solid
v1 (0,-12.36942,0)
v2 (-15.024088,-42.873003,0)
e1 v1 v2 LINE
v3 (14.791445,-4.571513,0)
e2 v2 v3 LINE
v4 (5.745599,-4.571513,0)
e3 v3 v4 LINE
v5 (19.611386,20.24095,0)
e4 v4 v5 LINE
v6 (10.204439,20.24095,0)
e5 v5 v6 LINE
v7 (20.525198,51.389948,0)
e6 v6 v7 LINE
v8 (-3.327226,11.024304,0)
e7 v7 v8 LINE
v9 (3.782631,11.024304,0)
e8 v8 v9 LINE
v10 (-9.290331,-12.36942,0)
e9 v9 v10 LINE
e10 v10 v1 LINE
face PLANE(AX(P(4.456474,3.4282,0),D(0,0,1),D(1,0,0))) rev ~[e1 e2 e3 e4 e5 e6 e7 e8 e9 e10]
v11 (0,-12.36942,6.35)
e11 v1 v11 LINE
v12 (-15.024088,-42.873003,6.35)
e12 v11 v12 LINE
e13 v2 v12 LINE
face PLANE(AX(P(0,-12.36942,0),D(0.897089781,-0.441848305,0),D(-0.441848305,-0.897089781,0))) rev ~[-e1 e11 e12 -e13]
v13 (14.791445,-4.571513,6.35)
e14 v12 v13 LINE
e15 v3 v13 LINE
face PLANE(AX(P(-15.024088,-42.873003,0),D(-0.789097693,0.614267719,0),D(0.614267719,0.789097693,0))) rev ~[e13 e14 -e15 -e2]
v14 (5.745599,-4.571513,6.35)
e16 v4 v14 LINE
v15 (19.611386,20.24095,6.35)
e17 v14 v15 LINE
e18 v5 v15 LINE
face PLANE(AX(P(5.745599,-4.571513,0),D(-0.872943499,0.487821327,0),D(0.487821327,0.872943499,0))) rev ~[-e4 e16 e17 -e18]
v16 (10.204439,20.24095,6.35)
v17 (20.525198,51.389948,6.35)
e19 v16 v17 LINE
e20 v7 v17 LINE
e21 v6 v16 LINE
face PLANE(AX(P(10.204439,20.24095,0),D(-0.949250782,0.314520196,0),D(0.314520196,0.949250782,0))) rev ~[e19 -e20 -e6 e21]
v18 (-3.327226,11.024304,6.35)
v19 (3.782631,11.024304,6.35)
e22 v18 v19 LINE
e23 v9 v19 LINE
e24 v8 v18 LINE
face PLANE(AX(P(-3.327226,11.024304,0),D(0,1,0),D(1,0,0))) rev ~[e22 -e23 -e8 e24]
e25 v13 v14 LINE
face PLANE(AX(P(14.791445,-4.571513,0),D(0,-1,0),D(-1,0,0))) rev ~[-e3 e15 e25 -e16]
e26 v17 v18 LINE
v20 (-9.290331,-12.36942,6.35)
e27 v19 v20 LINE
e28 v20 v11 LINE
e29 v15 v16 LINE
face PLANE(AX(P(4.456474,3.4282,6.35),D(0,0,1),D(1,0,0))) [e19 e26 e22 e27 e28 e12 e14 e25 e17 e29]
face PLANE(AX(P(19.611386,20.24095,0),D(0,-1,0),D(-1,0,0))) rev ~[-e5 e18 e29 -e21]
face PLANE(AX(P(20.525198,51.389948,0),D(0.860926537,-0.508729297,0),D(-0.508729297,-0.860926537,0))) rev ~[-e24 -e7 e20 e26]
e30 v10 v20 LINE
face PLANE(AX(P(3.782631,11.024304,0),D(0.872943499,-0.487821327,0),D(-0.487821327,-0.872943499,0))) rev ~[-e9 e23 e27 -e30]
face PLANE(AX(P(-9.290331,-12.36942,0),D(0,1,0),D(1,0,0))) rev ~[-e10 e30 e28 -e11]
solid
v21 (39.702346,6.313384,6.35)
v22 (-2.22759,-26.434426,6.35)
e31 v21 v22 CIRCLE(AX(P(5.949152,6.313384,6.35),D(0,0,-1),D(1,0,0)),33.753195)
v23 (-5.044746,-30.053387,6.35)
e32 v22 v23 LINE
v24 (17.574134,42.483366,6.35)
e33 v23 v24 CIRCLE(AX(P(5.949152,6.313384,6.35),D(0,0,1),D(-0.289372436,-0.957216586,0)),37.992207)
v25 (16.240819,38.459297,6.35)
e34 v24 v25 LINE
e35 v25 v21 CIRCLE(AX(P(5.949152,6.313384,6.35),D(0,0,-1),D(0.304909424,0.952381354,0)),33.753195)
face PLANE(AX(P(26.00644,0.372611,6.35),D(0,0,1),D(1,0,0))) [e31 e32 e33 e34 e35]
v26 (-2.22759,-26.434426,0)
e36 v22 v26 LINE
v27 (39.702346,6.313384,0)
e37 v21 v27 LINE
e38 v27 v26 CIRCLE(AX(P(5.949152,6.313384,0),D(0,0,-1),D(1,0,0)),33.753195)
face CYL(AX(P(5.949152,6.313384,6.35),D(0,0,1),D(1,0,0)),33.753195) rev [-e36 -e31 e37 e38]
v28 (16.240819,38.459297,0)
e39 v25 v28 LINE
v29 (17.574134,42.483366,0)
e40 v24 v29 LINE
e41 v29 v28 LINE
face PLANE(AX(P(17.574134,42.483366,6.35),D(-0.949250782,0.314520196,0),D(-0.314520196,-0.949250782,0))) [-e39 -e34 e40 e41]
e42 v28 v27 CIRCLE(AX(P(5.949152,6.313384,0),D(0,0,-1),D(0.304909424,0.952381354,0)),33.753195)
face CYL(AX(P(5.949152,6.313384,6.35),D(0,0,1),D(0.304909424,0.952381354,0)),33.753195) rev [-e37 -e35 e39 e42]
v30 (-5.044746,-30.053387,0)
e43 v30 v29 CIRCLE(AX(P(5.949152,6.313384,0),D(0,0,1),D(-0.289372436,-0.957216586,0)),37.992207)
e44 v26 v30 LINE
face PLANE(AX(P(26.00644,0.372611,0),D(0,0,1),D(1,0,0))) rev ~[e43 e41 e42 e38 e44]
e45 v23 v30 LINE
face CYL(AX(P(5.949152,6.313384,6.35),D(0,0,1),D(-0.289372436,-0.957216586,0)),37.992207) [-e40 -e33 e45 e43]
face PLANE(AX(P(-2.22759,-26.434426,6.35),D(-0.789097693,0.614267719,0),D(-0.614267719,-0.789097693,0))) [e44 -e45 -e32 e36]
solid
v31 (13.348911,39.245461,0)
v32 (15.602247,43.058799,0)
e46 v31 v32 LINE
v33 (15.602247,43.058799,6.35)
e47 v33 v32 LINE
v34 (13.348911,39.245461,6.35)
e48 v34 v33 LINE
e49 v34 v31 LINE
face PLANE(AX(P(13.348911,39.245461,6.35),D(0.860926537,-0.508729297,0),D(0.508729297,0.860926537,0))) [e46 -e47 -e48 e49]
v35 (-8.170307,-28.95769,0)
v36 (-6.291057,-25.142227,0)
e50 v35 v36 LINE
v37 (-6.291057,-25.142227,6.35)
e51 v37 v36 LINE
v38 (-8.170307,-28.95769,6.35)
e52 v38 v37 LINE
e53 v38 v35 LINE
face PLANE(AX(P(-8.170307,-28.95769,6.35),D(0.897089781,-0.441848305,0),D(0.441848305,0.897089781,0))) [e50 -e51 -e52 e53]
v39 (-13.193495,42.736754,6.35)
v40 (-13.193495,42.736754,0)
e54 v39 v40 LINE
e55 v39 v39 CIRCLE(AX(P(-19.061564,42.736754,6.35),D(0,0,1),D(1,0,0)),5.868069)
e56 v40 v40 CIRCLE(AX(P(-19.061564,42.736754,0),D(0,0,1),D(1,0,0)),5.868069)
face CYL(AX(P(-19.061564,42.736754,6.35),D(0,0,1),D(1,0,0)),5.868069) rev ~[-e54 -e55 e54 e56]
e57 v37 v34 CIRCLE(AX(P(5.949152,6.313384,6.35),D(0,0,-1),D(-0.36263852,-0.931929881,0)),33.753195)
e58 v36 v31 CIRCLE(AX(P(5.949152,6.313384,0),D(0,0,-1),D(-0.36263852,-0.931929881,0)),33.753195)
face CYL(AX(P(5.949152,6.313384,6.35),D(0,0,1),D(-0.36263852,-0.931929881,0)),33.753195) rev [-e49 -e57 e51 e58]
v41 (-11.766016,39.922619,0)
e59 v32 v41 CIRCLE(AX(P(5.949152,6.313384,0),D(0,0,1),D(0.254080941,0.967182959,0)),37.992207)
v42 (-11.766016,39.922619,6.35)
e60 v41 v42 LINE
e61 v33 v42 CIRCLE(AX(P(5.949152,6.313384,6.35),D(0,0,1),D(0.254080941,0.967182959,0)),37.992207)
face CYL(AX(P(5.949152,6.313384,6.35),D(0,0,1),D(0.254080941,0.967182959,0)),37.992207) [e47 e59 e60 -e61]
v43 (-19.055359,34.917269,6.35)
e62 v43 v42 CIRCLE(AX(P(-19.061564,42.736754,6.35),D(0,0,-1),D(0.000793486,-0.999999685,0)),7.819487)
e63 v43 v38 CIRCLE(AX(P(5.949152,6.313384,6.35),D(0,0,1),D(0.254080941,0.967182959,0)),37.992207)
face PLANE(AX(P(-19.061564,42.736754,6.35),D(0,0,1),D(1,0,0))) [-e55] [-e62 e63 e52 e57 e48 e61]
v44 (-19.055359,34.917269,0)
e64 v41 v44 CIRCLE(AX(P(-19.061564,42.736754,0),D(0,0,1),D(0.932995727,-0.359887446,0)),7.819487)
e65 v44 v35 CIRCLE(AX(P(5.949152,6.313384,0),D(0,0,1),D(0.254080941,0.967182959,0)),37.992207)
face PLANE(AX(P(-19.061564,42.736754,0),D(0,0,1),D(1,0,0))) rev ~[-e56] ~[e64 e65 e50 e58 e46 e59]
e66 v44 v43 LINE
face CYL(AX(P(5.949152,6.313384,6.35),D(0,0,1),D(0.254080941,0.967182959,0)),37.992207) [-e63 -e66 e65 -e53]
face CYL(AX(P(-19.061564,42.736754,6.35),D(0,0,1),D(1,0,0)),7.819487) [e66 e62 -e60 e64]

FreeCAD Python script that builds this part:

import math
import FreeCAD as App
import Part
import Sketcher
from FreeCAD import Vector
Q = App.Units.Quantity


def add_polygon(sketch, points):
    """Adds a closed chain of lines whose ends are joined by coincident constraints."""
    first, n = sketch.GeometryCount, len(points)
    for a, b in zip(points, points[1:] + points[:1]):
        sketch.addGeometry(Part.LineSegment(App.Vector(*a, 0), App.Vector(*b, 0)), False)
    for i in range(n):
        sketch.addConstraint(Sketcher.Constraint("Coincident", first + i, 2, first + (i + 1) % n, 1))

doc = App.newDocument("Part")
body = doc.addObject("PartDesign::Body", "Body")

# Sketch on XY plane
sketch1 = body.newObject("Sketcher::SketchObject", "Sketch")
sketch1.AttachmentSupport = (doc.getObject("XY_Plane"), [""])
sketch1.MapMode = "FlatFace"
add_polygon(sketch1, [(10, 20), (21, 51), (-3, 11), (4, 11), (-9, -12), (0, -12), (-15, -43), (15, -5), (6, -5), (20, 20)])  # lines 0-9
sketch1.addConstraint(Sketcher.Constraint("Horizontal", 2))
sketch1.addConstraint(Sketcher.Constraint("Horizontal", 4))
sketch1.addConstraint(Sketcher.Constraint("Horizontal", 7))
sketch1.addConstraint(Sketcher.Constraint("Horizontal", 9))
sketch1.addConstraint(Sketcher.Constraint("PointOnObject", 4, 2, -2))
sketch1.addConstraint(Sketcher.Constraint("Parallel", 3, 8))
sketch1.addConstraint(Sketcher.Constraint("DistanceX", 4, 1, 4, 2, Q("9.290331 mm")))
sketch1.addConstraint(Sketcher.Constraint("DistanceX", -1, 1, 0, 2, Q("20.525198 mm")))
sketch1.addConstraint(Sketcher.Constraint("DistanceX", -1, 1, 7, 2, Q("5.745599 mm")))
sketch1.addConstraint(Sketcher.Constraint("Distance", 1, Q("46.886281 mm")))
sketch1.addConstraint(Sketcher.Constraint("Distance", 3, Q("26.798669 mm")))
sketch1.addConstraint(Sketcher.Constraint("Distance", 5, Q("34.00282 mm")))
sketch1.addConstraint(Sketcher.Constraint("DistanceX", 2, 1, 2, 2, Q("7.109858 mm")))
sketch1.addConstraint(Sketcher.Constraint("DistanceX", 7, 2, 7, 1, Q("9.045846 mm")))
sketch1.addConstraint(Sketcher.Constraint("DistanceX", 9, 2, 9, 1, Q("9.406947 mm")))
sketch1.addConstraint(Sketcher.Constraint("DistanceX", -1, 1, 2, 2, Q("3.782631 mm")))
sketch1.addConstraint(Sketcher.Constraint("DistanceY", 3, 2, -1, 1, Q("12.36942 mm")))
sketch1.addConstraint(Sketcher.Constraint("DistanceX", 5, 2, -1, 1, Q("15.024088 mm")))
sketch1.addConstraint(Sketcher.Constraint("DistanceY", -1, 1, 8, 2, Q("20.24095 mm")))
sketch1.addConstraint(Sketcher.Constraint("DistanceX", -1, 1, 9, 2, Q("10.204439 mm")))
pad1 = body.newObject("PartDesign::Pad", "Pad")
pad1.Profile = sketch1
pad1.Length = Q("0.25 in")
body2 = doc.addObject("PartDesign::Body", "Body001")

# Sketch on XY plane
sketch2 = body2.newObject("Sketcher::SketchObject", "Sketch001")
sketch2.AttachmentSupport = (doc.getObject("XY_Plane001"), [""])
sketch2.MapMode = "FlatFace"
sketch2.AttachmentOffset = App.Placement(Vector(0, 0, 0.25 * 25.4), App.Rotation())
sketch2.addGeometry(Part.ArcOfCircle(Part.Circle(Vector(5.9, 6.3, 0), Vector(0, 0, 1), 33.8), math.radians(77), math.radians(249)), False)
sketch2.addGeometry(Part.LineSegment(Vector(13.3, 39.2, 0), Vector(15.6, 43.1, 0)), False)
sketch2.addGeometry(Part.ArcOfCircle(Part.Circle(Vector(5.9, 6.3, 0), Vector(0, 0, 1), 38), math.radians(75), math.radians(248)), False)
sketch2.addGeometry(Part.LineSegment(Vector(-8.2, -29, 0), Vector(-6.3, -25.1, 0)), False)
sketch2.addConstraint(Sketcher.Constraint("Coincident", 0, 1, 1, 1))
sketch2.addConstraint(Sketcher.Constraint("Coincident", 1, 2, 2, 1))
sketch2.addConstraint(Sketcher.Constraint("Coincident", 2, 2, 3, 1))
sketch2.addConstraint(Sketcher.Constraint("Coincident", 3, 2, 0, 2))
sketch2.addConstraint(Sketcher.Constraint("Coincident", 2, 3, 0, 3))
sketch2.addConstraint(Sketcher.Constraint("Radius", 0, Q("33.753195 mm")))
sketch2.addConstraint(Sketcher.Constraint("Radius", 2, Q("37.992207 mm")))
sketch2.addConstraint(Sketcher.Constraint("DistanceY", -1, 1, 1, 2, Q("43.058799 mm")))
sketch2.addConstraint(Sketcher.Constraint("DistanceX", -1, 1, 0, 3, Q("5.949152 mm")))
sketch2.addConstraint(Sketcher.Constraint("DistanceX", -1, 1, 0, 1, Q("13.348911 mm")))
sketch2.addConstraint(Sketcher.Constraint("DistanceY", -1, 1, 0, 1, Q("39.245461 mm")))
sketch2.addConstraint(Sketcher.Constraint("DistanceY", 2, 2, -1, 1, Q("28.95769 mm")))
sketch2.addConstraint(Sketcher.Constraint("DistanceX", 2, 2, 3, 2, Q("1.87925 mm")))
pad2 = body2.newObject("PartDesign::Pad", "Pad001")
pad2.Profile = sketch2
pad2.Length = Q("0.25 in")
pad2.Reversed = True

# Sketch on XY plane
sketch3 = body2.newObject("Sketcher::SketchObject", "Sketch002")
sketch3.AttachmentSupport = (doc.getObject("XY_Plane001"), [""])
sketch3.MapMode = "FlatFace"
sketch3.AttachmentOffset = App.Placement(Vector(0, 0, 0.25 * 25.4), App.Rotation())
sketch3.addGeometry(Part.Circle(Vector(-19, 43, 0), Vector(0, 0, 1), 8), False)
sketch3.addGeometry(Part.Circle(Vector(-19, 43, 0), Vector(0, 0, 1), 6), False)
sketch3.addConstraint(Sketcher.Constraint("Coincident", 1, 3, 0, 3))
sketch3.addConstraint(Sketcher.Constraint("Diameter", 0, Q("15.638974 mm")))
sketch3.addConstraint(Sketcher.Constraint("Diameter", 1, Q("11.736138 mm")))
sketch3.addConstraint(Sketcher.Constraint("DistanceX", 0, 3, -1, 1, Q("19.061564 mm")))
sketch3.addConstraint(Sketcher.Constraint("DistanceY", -1, 1, 0, 3, Q("42.736754 mm")))
pad3 = body2.newObject("PartDesign::Pad", "Pad002")
pad3.Profile = sketch3
pad3.Length = Q("0.25 in")
pad3.Reversed = True
body3 = doc.addObject("PartDesign::Body", "Body002")

# Sketch on XY plane
sketch4 = body3.newObject("Sketcher::SketchObject", "Sketch003")
sketch4.AttachmentSupport = (doc.getObject("XY_Plane002"), [""])
sketch4.MapMode = "FlatFace"
sketch4.AttachmentOffset = App.Placement(Vector(0, 0, 0.25 * 25.4), App.Rotation())
sketch4.addGeometry(Part.ArcOfCircle(Part.Circle(Vector(5.9, 6.3, 0), Vector(0, 0, 1), 33.8), math.radians(0), math.radians(72)), False)
sketch4.addGeometry(Part.ArcOfCircle(Part.Circle(Vector(5.9, 6.3, 0), Vector(0, 0, 1), 33.8), math.radians(-104), math.radians(0)), False)
sketch4.addGeometry(Part.LineSegment(Vector(-2.2, -26.4, 0), Vector(-5, -30.1, 0)), False)
sketch4.addGeometry(Part.ArcOfCircle(Part.Circle(Vector(5.9, 6.3, 0), Vector(0, 0, 1), 38), math.radians(-107), math.radians(72)), False)
sketch4.addGeometry(Part.LineSegment(Vector(17.6, 42.5, 0), Vector(16.2, 38.5, 0)), False)
sketch4.addConstraint(Sketcher.Constraint("Tangent", 0, 1, 1, 2))
sketch4.addConstraint(Sketcher.Constraint("Coincident", 1, 1, 2, 1))
sketch4.addConstraint(Sketcher.Constraint("Coincident", 2, 2, 3, 1))
sketch4.addConstraint(Sketcher.Constraint("Coincident", 3, 2, 4, 1))
sketch4.addConstraint(Sketcher.Constraint("Coincident", 4, 2, 0, 2))
sketch4.addConstraint(Sketcher.Constraint("Coincident", 3, 3, 0, 3))
sketch4.addConstraint(Sketcher.Constraint("Equal", 0, 1))
sketch4.addConstraint(Sketcher.Constraint("Horizontal", 3, 3, 0, 1))
sketch4.addConstraint(Sketcher.Constraint("Radius", 0, Q("33.753195 mm")))
sketch4.addConstraint(Sketcher.Constraint("Radius", 3, Q("37.992207 mm")))
sketch4.addConstraint(Sketcher.Constraint("Distance", 2, Q("4.586202 mm")))
sketch4.addConstraint(Sketcher.Constraint("DistanceX", -1, 1, 0, 3, Q("5.949152 mm")))
sketch4.addConstraint(Sketcher.Constraint("DistanceX", 1, 1, -1, 1, Q("2.22759 mm")))
sketch4.addConstraint(Sketcher.Constraint("DistanceX", -1, 1, 4, 2, Q("16.240819 mm")))
sketch4.addConstraint(Sketcher.Constraint("DistanceY", 0, 3, 3, 2, Q("36.169982 mm")))
sketch4.addConstraint(Sketcher.Constraint("DistanceY", -1, 1, 0, 3, Q("6.313384 mm")))
pad4 = body3.newObject("PartDesign::Pad", "Pad003")
pad4.Profile = sketch4
pad4.Length = Q("0.25 in")
pad4.Reversed = True

doc.recompute()
